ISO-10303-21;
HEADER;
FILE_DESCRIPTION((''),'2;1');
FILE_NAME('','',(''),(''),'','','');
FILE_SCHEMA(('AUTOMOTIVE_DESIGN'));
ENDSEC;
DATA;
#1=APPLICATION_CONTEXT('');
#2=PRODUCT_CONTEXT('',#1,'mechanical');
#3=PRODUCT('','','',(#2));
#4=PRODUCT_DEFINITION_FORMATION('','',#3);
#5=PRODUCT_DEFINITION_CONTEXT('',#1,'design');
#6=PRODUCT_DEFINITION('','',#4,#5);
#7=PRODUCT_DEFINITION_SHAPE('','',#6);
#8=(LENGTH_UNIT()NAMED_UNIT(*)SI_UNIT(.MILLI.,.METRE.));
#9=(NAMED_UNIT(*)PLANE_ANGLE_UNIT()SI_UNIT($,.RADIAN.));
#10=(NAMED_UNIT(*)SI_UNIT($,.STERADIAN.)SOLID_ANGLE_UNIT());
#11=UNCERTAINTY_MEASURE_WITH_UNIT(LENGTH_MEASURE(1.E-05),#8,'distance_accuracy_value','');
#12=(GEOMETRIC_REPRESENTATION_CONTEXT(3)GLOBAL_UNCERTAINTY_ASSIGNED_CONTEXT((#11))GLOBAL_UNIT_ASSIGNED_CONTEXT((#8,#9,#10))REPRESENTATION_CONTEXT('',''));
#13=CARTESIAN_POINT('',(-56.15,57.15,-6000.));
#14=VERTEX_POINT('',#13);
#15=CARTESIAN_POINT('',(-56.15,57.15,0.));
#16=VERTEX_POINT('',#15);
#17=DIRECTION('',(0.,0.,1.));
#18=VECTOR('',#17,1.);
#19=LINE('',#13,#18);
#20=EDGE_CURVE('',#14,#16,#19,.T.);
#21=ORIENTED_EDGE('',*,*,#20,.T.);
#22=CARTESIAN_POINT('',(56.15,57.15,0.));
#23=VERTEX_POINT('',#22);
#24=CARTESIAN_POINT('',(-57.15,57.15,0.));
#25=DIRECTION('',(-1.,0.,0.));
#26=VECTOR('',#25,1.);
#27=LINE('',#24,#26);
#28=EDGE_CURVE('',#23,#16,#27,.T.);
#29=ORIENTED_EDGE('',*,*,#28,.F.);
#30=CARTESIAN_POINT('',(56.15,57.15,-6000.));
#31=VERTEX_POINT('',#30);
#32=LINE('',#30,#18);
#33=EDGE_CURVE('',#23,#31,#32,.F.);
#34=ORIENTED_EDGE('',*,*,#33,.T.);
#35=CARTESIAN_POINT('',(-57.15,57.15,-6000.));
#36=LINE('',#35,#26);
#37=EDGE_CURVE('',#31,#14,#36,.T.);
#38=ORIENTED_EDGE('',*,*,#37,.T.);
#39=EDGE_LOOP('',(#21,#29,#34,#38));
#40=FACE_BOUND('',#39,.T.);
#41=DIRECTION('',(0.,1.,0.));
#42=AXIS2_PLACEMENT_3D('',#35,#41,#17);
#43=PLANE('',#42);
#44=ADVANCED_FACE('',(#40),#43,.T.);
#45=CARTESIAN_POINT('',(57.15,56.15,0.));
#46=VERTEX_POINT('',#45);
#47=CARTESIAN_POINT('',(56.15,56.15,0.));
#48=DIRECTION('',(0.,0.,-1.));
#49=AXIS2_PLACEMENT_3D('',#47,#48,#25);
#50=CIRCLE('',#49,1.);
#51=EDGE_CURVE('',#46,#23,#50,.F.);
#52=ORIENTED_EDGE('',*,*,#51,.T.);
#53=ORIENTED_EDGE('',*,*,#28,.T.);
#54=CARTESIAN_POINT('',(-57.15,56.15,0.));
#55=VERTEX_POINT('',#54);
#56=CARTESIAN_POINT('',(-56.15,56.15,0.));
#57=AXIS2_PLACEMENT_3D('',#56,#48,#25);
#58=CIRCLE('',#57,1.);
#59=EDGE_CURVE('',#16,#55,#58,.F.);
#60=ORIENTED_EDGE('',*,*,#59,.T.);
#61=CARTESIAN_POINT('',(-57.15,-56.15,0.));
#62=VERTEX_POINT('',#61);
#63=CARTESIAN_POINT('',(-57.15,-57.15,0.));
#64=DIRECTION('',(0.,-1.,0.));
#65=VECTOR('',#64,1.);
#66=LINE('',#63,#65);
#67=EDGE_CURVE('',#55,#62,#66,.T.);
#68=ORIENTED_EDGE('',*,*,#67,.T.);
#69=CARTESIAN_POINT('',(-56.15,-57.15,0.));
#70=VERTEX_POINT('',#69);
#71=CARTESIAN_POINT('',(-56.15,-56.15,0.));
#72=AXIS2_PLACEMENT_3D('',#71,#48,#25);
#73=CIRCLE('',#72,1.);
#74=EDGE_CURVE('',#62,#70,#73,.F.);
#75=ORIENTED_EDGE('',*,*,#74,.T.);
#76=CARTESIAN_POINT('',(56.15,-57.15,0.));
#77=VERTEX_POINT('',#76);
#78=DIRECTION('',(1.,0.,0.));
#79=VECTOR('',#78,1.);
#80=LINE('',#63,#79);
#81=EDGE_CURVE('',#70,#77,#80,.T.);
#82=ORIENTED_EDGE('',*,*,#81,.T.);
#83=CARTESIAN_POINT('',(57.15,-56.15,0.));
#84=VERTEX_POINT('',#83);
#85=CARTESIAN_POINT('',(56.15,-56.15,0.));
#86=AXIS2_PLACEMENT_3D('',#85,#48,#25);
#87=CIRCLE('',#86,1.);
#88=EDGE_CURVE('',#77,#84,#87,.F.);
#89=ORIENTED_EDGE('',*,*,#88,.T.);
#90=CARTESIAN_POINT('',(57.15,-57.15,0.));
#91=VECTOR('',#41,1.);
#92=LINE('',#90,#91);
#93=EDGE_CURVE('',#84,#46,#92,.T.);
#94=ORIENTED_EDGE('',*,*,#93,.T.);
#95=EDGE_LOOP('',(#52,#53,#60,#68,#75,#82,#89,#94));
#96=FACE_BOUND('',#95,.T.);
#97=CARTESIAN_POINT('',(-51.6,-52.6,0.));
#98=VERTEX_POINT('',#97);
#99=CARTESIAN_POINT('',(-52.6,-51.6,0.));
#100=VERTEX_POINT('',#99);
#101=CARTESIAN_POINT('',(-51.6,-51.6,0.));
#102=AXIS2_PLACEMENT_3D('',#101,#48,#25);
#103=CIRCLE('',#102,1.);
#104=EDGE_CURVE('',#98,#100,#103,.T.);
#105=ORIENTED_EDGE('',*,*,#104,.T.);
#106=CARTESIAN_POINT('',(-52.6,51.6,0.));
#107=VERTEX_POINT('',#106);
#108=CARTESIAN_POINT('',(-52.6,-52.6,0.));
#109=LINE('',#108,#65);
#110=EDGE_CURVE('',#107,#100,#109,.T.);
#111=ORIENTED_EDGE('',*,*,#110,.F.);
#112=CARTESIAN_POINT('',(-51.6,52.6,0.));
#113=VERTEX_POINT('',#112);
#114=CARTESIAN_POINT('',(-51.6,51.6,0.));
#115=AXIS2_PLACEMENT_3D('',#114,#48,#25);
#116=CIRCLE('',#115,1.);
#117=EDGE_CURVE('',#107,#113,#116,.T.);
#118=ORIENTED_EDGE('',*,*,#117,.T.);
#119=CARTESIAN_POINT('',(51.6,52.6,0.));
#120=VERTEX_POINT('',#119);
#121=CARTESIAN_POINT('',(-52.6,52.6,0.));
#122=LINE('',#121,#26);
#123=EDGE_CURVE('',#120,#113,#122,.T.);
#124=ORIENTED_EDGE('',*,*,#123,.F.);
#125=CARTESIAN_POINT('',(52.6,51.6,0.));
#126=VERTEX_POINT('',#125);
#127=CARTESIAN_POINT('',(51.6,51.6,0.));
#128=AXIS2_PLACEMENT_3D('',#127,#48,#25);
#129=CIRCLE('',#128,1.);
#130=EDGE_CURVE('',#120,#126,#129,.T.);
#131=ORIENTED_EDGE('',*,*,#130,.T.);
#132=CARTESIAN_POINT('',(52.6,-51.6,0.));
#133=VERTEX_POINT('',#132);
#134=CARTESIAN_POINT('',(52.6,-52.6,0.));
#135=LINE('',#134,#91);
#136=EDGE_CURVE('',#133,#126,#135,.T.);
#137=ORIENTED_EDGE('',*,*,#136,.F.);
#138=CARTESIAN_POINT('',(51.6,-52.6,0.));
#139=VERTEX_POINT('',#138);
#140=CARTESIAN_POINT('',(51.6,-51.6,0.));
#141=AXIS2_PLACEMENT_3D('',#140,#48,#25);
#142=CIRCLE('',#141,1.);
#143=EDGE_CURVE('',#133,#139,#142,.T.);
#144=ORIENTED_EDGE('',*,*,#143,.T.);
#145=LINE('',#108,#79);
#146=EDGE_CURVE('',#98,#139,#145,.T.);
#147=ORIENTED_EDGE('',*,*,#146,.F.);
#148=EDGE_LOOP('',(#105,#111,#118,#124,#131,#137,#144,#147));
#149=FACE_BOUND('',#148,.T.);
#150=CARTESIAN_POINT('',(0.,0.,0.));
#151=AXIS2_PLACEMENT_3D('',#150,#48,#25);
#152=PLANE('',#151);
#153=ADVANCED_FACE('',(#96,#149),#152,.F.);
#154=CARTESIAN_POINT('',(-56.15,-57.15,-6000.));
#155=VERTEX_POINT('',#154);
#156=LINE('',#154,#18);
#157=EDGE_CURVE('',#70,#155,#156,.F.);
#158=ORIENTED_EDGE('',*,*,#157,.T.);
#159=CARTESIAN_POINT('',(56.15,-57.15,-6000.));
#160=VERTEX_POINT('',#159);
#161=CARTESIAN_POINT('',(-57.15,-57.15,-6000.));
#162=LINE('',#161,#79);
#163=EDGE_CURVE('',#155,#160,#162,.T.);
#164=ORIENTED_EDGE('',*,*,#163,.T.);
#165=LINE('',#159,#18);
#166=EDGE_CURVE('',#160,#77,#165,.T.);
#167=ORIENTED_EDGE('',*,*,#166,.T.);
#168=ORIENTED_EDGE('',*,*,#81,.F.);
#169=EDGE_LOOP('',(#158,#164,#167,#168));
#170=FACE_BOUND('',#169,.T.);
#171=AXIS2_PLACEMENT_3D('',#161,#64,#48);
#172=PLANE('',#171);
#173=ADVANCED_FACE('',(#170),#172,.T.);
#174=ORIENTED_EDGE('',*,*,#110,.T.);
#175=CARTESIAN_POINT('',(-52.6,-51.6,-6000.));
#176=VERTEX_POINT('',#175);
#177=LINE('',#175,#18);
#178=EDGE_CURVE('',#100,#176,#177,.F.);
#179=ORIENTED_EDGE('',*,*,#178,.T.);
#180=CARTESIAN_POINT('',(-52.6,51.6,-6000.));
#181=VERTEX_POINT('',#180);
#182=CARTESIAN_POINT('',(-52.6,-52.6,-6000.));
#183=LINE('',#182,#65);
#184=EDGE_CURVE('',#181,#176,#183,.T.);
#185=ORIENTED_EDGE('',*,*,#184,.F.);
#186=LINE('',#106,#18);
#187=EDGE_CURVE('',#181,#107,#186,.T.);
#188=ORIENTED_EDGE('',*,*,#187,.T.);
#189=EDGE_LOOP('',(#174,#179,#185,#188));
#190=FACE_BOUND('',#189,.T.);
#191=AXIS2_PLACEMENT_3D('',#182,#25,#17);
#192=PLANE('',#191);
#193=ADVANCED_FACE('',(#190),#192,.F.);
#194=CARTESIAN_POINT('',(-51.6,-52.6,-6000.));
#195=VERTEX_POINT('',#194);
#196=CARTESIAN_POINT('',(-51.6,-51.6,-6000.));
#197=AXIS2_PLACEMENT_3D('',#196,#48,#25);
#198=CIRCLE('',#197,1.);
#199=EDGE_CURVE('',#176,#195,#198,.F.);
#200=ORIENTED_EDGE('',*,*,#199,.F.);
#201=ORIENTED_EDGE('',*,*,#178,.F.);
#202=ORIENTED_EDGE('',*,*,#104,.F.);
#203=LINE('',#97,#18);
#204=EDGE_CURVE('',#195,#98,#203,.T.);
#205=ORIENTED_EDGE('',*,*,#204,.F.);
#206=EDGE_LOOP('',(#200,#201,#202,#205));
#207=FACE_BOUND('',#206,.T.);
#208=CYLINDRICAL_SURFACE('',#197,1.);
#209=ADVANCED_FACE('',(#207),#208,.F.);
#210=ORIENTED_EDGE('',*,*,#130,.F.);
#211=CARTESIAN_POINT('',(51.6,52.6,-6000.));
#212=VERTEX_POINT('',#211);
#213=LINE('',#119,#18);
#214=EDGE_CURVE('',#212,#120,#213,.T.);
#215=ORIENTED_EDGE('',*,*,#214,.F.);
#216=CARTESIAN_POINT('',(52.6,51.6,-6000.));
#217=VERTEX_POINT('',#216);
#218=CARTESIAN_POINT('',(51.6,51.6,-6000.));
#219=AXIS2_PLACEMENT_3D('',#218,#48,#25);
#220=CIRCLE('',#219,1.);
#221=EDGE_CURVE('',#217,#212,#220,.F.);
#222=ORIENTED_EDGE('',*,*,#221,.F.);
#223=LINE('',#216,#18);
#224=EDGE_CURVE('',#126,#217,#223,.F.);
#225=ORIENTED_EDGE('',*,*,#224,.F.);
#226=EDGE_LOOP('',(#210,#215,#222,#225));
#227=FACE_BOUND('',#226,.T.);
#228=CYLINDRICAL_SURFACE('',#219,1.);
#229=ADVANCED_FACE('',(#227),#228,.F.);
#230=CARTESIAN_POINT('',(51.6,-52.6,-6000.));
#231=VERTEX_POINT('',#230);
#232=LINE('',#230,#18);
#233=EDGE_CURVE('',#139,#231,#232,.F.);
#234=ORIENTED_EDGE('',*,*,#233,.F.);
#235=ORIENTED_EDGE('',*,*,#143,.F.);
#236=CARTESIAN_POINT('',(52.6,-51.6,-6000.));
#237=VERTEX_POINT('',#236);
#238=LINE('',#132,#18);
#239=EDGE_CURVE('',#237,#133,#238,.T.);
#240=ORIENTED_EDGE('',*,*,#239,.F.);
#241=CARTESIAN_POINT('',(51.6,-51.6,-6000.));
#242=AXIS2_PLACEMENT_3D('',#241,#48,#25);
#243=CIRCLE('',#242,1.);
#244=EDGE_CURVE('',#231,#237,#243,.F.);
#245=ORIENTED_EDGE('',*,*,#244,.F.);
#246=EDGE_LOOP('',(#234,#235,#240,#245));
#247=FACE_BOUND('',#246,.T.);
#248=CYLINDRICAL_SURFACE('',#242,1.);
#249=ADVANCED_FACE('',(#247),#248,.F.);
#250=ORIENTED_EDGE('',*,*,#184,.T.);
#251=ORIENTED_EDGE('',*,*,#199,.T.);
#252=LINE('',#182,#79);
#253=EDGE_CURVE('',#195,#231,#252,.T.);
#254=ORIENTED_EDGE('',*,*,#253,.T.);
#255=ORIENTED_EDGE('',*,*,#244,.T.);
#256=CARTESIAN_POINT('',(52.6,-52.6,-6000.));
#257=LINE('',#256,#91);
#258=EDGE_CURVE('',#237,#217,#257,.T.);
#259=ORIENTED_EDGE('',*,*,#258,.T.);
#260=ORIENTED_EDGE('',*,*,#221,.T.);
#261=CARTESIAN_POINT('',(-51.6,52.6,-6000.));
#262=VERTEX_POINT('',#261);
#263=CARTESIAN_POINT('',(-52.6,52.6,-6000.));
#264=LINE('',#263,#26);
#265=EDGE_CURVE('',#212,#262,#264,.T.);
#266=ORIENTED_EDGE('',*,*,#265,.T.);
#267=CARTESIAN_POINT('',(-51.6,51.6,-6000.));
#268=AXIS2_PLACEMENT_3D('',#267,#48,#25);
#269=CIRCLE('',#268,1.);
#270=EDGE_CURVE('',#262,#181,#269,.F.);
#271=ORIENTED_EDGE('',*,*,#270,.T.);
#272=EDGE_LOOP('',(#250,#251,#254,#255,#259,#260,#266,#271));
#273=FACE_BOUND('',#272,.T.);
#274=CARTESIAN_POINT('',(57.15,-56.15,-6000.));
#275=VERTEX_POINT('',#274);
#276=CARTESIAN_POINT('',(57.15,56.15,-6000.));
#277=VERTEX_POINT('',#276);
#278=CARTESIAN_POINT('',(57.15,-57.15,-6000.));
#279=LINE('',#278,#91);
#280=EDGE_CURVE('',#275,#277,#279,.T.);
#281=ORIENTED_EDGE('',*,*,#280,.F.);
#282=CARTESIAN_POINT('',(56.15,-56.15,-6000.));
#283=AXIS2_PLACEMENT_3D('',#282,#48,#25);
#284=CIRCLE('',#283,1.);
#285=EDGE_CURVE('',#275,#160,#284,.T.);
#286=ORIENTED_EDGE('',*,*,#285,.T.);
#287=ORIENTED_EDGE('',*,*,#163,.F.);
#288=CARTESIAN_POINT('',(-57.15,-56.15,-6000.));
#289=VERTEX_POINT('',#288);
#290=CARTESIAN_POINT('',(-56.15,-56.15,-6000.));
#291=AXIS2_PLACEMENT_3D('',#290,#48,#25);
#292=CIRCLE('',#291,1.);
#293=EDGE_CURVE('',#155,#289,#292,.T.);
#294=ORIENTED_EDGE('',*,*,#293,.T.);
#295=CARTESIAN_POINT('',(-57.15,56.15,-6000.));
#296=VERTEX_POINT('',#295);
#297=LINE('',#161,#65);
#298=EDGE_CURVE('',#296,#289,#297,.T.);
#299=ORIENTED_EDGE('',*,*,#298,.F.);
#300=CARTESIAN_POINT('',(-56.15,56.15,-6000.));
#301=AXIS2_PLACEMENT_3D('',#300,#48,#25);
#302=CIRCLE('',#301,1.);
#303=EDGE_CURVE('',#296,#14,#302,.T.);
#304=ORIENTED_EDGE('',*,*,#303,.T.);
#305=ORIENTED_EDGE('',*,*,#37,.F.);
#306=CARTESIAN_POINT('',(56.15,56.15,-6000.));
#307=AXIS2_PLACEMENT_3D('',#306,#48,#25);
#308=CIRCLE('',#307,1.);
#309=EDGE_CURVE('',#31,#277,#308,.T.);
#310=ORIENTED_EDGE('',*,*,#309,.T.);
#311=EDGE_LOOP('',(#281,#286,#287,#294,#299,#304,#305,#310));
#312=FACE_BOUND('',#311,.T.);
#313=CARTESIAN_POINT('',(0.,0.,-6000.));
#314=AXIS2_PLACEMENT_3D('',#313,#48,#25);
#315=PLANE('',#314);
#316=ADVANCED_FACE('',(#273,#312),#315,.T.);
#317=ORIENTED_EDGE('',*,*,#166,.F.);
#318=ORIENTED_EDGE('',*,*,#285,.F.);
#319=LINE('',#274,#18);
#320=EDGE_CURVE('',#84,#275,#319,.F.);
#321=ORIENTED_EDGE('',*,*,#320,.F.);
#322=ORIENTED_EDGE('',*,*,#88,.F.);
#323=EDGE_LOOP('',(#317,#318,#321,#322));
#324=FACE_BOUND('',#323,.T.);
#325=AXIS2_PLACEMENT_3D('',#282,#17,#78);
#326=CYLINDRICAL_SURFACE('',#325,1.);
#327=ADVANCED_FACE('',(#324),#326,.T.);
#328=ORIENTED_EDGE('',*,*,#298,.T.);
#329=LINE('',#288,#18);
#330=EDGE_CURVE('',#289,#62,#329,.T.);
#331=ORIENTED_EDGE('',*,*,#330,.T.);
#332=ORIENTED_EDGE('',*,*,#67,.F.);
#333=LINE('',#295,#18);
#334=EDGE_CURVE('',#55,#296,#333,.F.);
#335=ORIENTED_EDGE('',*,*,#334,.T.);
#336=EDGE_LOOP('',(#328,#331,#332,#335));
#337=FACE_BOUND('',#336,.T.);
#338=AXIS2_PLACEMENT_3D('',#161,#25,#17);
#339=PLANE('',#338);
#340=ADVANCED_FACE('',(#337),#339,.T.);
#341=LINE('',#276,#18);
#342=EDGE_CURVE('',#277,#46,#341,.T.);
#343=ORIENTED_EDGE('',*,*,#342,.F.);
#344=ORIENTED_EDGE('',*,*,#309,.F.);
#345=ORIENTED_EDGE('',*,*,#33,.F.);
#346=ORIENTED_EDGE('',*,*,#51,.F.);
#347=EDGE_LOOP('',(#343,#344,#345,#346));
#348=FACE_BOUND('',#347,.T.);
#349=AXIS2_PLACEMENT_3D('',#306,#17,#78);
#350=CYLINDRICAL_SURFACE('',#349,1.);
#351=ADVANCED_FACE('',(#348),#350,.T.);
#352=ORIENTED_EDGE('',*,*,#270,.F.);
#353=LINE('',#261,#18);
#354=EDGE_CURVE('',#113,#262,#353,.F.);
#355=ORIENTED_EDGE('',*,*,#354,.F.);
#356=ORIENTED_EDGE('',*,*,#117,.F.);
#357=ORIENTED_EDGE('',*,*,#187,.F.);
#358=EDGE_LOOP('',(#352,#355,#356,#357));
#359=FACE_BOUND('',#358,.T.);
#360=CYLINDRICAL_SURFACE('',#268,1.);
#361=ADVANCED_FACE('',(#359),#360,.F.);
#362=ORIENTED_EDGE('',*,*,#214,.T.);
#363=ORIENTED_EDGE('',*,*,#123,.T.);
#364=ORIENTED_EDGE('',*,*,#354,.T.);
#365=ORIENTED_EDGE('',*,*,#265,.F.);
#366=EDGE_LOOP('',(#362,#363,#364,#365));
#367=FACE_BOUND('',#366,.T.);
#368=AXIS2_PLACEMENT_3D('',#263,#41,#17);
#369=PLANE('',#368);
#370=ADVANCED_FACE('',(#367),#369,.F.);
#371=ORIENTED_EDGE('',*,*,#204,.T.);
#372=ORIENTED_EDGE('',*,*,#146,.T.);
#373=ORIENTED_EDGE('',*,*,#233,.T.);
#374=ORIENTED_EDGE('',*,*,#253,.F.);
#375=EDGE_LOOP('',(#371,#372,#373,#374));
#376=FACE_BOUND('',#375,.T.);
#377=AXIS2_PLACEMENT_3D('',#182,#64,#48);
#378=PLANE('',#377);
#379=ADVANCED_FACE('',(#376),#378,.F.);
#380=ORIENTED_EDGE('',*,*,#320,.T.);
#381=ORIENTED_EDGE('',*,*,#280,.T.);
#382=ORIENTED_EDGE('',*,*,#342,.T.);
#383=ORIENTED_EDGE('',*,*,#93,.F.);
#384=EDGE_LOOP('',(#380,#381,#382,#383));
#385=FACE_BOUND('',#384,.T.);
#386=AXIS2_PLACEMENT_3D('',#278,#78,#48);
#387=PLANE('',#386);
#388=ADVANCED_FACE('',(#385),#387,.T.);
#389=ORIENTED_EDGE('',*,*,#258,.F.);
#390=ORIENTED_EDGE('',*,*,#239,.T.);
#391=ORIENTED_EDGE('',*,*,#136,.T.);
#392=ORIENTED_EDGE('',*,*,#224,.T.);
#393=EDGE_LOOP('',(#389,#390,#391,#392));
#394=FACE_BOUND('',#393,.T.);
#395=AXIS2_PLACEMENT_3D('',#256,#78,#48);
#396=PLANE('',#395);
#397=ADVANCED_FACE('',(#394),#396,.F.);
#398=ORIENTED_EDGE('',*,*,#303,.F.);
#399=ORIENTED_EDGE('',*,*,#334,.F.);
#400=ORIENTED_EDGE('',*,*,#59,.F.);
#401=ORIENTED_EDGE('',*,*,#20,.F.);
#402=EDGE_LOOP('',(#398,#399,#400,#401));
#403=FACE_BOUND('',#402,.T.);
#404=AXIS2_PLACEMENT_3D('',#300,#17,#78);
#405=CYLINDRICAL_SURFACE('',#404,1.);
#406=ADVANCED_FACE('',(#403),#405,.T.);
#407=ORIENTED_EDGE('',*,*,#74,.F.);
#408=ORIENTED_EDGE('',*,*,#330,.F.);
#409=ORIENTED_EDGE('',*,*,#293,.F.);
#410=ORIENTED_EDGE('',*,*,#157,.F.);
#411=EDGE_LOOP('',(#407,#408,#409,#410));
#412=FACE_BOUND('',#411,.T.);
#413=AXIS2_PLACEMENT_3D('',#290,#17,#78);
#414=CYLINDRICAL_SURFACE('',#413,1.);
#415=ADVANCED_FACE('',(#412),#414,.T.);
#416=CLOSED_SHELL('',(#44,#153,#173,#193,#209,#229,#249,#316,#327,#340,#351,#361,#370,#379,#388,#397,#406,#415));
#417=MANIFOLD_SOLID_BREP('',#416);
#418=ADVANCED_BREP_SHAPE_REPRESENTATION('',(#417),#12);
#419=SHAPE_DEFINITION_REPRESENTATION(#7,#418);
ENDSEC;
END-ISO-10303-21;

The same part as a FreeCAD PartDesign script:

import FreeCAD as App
import Part
import Sketcher
Q = App.Units.Quantity


def edges_at(feature, points):
    """Names of the edges that pass closest to the given points."""
    edges = feature.Shape.Edges
    near = lambda p: min(range(len(edges)), key=lambda i: edges[i].distToShape(Part.Vertex(*p))[0])
    return sorted({f"Edge{near(p) + 1}" for p in points})

doc = App.newDocument("Part")
body = doc.addObject("PartDesign::Body", "Body")

# Sketch on XY plane
sketch1 = body.newObject("Sketcher::SketchObject", "Sketch")
sketch1.AttachmentSupport = (doc.getObject("XY_Plane"), [""])
sketch1.MapMode = "FlatFace"
sketch1.addGeometry(Part.LineSegment(App.Vector(-57.15, 57.15, 0), App.Vector(-57.15, -57.15, 0)), False)
sketch1.addGeometry(Part.LineSegment(App.Vector(-57.15, -57.15, 0), App.Vector(57.15, -57.15, 0)), False)
sketch1.addGeometry(Part.LineSegment(App.Vector(57.15, -57.15, 0), App.Vector(57.15, 57.15, 0)), False)
sketch1.addGeometry(Part.LineSegment(App.Vector(57.15, 57.15, 0), App.Vector(-57.15, 57.15, 0)), False)
sketch1.addGeometry(Part.LineSegment(App.Vector(52.6, -52.6, 0), App.Vector(-52.6, -52.6, 0)), False)
sketch1.addGeometry(Part.LineSegment(App.Vector(-52.6, -52.6, 0), App.Vector(-52.6, 52.6, 0)), False)
sketch1.addGeometry(Part.LineSegment(App.Vector(-52.6, 52.6, 0), App.Vector(52.6, 52.6, 0)), False)
sketch1.addGeometry(Part.LineSegment(App.Vector(52.6, 52.6, 0), App.Vector(52.6, -52.6, 0)), False)
sketch1.addConstraint(Sketcher.Constraint("Coincident", 0, 2, 1, 1))
sketch1.addConstraint(Sketcher.Constraint("Coincident", 1, 2, 2, 1))
sketch1.addConstraint(Sketcher.Constraint("Coincident", 2, 2, 3, 1))
sketch1.addConstraint(Sketcher.Constraint("Coincident", 3, 2, 0, 1))
sketch1.addConstraint(Sketcher.Constraint("Coincident", 4, 2, 5, 1))
sketch1.addConstraint(Sketcher.Constraint("Coincident", 5, 2, 6, 1))
sketch1.addConstraint(Sketcher.Constraint("Coincident", 6, 2, 7, 1))
sketch1.addConstraint(Sketcher.Constraint("Coincident", 7, 2, 4, 1))
sketch1.addConstraint(Sketcher.Constraint("Vertical", 0))
sketch1.addConstraint(Sketcher.Constraint("Horizontal", 1))
sketch1.addConstraint(Sketcher.Constraint("Vertical", 2))
sketch1.addConstraint(Sketcher.Constraint("Horizontal", 3))
sketch1.addConstraint(Sketcher.Constraint("Horizontal", 4))
sketch1.addConstraint(Sketcher.Constraint("Vertical", 5))
sketch1.addConstraint(Sketcher.Constraint("Horizontal", 6))
sketch1.addConstraint(Sketcher.Constraint("Vertical", 7))
sketch1.addConstraint(Sketcher.Constraint("Symmetric", 0, 2, 2, 2, -1, 1))
sketch1.addConstraint(Sketcher.Constraint("Symmetric", 4, 2, 6, 2, -1, 1))
sketch1.addConstraint(Sketcher.Constraint("Equal", 3, 0))
sketch1.addConstraint(Sketcher.Constraint("Equal", 6, 5))
sketch1.addConstraint(Sketcher.Constraint("DistanceX", 1, 1, 1, 2, Q("114.3 mm")))
sketch1.addConstraint(Sketcher.Constraint("DistanceX", 4, 2, 4, 1, Q("105.2 mm")))
pad1 = body.newObject("PartDesign::Pad", "Pad")
pad1.Profile = sketch1
pad1.Length = 6000
pad1.Reversed = True
doc.recompute()

fillet = body.newObject("PartDesign::Fillet", "Fillet")
fillet.Base = (pad1, edges_at(pad1, [
    (52.6, -52.6, -3000),
    (-52.6, -52.6, -3000),
    (-52.6, 52.6, -3000),
    (52.6, 52.6, -3000),
    (57.15, -57.15, -3000),
    (-57.15, -57.15, -3000),
    (-57.15, 57.15, -3000),
    (57.15, 57.15, -3000),
]))
fillet.Radius = 1

doc.recompute()
